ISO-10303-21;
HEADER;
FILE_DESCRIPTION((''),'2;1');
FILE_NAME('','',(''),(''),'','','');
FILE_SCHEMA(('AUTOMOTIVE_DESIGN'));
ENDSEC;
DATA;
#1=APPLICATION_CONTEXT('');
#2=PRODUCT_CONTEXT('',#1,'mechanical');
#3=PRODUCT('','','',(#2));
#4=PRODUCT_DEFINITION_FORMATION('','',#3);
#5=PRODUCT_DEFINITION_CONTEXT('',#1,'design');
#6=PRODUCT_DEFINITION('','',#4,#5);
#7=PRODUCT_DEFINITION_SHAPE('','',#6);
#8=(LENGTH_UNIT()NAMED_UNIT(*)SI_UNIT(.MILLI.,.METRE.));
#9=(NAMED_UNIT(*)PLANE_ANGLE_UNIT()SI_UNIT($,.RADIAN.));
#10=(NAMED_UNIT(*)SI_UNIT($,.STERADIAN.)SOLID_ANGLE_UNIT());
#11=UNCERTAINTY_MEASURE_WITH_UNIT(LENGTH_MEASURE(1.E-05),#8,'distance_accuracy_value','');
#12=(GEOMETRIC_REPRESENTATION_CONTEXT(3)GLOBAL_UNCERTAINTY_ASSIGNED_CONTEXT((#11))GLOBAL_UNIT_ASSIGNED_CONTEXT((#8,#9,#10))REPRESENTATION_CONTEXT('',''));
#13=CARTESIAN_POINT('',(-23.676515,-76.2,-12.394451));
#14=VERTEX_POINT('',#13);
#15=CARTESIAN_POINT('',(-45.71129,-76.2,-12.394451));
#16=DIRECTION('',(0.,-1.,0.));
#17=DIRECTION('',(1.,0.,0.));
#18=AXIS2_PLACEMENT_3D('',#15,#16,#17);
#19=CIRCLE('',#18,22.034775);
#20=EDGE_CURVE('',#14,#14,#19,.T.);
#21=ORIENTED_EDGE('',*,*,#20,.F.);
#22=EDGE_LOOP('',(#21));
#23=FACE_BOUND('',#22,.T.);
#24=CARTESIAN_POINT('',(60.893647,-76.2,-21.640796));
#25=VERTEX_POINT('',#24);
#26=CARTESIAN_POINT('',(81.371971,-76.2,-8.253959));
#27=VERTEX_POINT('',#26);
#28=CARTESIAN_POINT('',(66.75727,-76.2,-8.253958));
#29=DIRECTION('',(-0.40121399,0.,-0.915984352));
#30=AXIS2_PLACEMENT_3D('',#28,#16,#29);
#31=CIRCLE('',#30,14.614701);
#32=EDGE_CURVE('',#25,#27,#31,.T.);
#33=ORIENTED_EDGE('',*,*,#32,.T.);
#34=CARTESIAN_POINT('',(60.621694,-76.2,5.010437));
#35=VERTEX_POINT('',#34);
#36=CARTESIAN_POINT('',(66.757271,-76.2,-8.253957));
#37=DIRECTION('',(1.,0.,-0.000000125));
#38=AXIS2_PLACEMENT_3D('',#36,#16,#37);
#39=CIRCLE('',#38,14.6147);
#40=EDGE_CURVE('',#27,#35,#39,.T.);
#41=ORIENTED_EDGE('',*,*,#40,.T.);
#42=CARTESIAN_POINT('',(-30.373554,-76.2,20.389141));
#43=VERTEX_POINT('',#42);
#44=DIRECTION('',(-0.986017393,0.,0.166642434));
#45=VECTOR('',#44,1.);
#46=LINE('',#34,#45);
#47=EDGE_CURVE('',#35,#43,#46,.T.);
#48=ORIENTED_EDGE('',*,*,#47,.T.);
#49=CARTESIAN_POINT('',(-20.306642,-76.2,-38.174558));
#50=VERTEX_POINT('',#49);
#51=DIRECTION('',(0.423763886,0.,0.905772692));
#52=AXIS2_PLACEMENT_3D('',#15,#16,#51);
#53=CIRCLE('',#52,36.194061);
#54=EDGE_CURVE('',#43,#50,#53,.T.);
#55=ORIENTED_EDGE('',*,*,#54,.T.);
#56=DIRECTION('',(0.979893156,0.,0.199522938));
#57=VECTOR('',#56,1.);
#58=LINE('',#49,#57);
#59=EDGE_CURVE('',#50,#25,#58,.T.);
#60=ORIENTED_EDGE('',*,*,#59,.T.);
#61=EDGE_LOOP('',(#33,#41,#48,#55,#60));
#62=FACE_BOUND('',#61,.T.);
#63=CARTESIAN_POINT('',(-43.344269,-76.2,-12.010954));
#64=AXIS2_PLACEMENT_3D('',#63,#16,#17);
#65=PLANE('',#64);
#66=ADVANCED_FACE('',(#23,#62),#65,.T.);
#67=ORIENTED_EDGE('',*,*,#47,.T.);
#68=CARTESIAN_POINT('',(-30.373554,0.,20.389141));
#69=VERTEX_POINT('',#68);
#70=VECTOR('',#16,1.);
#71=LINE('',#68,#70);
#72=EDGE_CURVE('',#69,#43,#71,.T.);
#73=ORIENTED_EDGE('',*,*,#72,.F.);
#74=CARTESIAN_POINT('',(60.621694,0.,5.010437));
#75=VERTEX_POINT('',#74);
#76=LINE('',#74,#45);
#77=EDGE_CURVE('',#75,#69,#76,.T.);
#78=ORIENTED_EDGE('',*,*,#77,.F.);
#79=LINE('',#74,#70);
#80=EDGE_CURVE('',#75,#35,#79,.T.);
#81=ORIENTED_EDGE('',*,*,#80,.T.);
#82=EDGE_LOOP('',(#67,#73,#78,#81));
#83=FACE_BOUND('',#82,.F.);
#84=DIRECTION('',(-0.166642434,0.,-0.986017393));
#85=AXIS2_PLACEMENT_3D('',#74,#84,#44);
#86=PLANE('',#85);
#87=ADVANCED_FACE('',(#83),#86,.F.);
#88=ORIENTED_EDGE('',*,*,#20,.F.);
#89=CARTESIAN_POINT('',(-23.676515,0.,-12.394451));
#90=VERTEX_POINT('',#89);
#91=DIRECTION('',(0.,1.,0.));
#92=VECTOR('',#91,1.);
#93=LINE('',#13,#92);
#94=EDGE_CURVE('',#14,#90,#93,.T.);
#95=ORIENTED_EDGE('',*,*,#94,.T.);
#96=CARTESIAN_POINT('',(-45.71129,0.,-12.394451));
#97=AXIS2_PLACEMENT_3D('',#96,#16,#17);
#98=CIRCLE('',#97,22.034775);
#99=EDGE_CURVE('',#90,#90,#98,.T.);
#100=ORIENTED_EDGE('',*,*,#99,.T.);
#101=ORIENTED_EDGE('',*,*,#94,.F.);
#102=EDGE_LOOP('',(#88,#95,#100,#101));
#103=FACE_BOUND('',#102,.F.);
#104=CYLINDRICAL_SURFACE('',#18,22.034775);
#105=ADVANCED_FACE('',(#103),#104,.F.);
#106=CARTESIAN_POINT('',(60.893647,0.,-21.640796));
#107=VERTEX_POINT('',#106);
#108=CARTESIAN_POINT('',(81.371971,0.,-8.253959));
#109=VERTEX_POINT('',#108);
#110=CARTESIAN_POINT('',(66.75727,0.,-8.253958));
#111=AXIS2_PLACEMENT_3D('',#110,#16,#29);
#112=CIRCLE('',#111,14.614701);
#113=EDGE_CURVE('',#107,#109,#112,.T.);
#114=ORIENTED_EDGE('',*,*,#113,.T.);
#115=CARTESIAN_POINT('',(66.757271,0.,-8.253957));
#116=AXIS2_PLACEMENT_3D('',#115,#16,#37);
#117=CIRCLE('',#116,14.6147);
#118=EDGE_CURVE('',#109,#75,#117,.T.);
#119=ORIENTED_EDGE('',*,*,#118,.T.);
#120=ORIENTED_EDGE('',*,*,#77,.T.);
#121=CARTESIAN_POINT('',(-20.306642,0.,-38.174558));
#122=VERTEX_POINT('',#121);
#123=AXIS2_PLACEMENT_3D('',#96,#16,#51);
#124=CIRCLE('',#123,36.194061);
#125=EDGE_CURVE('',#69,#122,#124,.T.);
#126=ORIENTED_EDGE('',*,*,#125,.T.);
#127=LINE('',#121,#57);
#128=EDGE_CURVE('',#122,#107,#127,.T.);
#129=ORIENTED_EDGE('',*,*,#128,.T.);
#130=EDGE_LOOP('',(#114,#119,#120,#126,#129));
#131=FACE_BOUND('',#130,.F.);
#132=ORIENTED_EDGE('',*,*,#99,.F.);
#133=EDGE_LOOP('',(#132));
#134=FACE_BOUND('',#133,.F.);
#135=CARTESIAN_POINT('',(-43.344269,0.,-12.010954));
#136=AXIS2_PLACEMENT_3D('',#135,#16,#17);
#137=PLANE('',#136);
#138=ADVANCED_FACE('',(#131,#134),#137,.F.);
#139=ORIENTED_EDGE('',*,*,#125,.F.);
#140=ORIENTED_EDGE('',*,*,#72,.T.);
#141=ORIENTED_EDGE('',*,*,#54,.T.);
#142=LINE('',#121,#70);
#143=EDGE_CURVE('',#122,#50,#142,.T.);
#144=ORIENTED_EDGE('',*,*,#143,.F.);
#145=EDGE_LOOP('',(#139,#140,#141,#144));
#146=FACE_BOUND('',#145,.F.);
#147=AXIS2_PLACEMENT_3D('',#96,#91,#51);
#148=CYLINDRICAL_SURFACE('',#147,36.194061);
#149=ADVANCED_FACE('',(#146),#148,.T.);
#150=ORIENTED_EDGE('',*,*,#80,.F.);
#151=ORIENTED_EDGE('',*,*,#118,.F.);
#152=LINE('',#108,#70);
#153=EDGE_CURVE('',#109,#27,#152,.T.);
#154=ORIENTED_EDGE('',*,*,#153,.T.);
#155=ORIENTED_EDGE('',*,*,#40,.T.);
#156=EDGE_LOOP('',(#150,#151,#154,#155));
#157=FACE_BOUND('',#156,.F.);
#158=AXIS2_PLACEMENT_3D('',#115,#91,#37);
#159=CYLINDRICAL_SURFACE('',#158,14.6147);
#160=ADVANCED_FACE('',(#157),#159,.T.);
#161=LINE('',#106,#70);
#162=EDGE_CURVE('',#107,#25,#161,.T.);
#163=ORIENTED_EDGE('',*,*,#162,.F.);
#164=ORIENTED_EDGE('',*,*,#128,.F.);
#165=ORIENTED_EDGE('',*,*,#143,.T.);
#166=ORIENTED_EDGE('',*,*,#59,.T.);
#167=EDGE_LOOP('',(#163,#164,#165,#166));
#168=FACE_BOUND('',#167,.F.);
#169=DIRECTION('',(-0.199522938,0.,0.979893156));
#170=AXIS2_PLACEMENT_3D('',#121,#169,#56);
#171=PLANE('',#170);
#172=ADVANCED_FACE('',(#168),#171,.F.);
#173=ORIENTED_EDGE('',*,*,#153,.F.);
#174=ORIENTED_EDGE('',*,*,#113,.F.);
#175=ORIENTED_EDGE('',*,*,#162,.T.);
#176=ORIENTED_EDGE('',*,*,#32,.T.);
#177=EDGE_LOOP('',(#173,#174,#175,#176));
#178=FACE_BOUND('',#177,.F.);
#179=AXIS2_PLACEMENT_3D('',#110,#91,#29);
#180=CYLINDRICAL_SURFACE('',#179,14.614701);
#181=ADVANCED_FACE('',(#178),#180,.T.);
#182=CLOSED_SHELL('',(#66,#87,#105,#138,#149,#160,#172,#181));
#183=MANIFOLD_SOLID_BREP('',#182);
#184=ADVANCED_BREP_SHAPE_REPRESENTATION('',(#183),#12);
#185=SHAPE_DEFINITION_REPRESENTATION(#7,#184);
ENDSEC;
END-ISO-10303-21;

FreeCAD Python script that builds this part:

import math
import FreeCAD as App
import Part
import Sketcher
from FreeCAD import Vector
Q = App.Units.Quantity

doc = App.newDocument("Part")
body = doc.addObject("PartDesign::Body", "Body")

# Sketch on XZ plane
sketch1 = body.newObject("Sketcher::SketchObject", "Sketch")
sketch1.AttachmentSupport = (doc.getObject("XZ_Plane"), [""])
sketch1.MapMode = "FlatFace"
sketch1.addGeometry([
    Part.ArcOfCircle(Part.Circle(Vector(-46, -12, 0), Vector(0, 0, 1), 36), math.radians(65), math.radians(315)),  # 0
    Part.LineSegment(Vector(-20, -38, 0), Vector(61, -22, 0)),  # 1
    Part.ArcOfCircle(Part.Circle(Vector(67, -8, 0), Vector(0, 0, 1), 15), math.radians(-114), math.radians(0)),  # 2
    Part.ArcOfCircle(Part.Circle(Vector(67, -8, 0), Vector(0, 0, 1), 15), math.radians(0), math.radians(115)),  # 3
    Part.LineSegment(Vector(61, 5, 0), Vector(-30, 20, 0)),  # 4
], False)
sketch1.addConstraint([
    Sketcher.Constraint("Coincident", 0, 2, 1, 1),
    Sketcher.Constraint("Coincident", 1, 2, 2, 1),
    Sketcher.Constraint("Tangent", 2, 2, 3, 1),
    Sketcher.Constraint("Coincident", 3, 2, 4, 1),
    Sketcher.Constraint("Coincident", 4, 2, 0, 1),
    Sketcher.Constraint("Equal", 2, 3),
    Sketcher.Constraint("Horizontal", 3, 3, 2, 2),
    Sketcher.Constraint("Radius", 2, Q("14.614701 mm")),
    Sketcher.Constraint("DistanceY", 1, 2, -1, 1, Q("0.8519998 in")),
    Sketcher.Constraint("Radius", 0, Q("36.194061 mm")),
    Sketcher.Constraint("DistanceY", 0, 2, 2, 3, Q("29.9206 mm")),
    Sketcher.Constraint("DistanceY", 0, 2, 4, 2, Q("58.563699 mm")),
    Sketcher.Constraint("DistanceX", 4, 2, 1, 2, Q("91.267201 mm")),
    Sketcher.Constraint("Distance", 4, Q("92.285642 mm")),
    Sketcher.Constraint("DistanceX", 0, 3, -1, 1, Q("45.71129 mm")),
    Sketcher.Constraint("DistanceY", 0, 3, -1, 1, Q("12.394451 mm")),
    Sketcher.Constraint("DistanceX", -1, 1, 2, 3, Q("66.75727 mm")),
])
pad1 = body.newObject("PartDesign::Pad", "Pad")
pad1.Profile = sketch1
pad1.Length = Q("3 in")

# Sketch on XZ plane
sketch2 = body.newObject("Sketcher::SketchObject", "Sketch001")
sketch2.AttachmentSupport = (doc.getObject("XZ_Plane"), [""])
sketch2.MapMode = "FlatFace"
sketch2.AttachmentOffset = App.Placement(Vector(0, 0, 3 * 25.4), App.Rotation())
sketch2.addGeometry(Part.Circle(Vector(-46, -12, 0), Vector(0, 0, 1), 22), False)
sketch2.addConstraint([
    Sketcher.Constraint("Diameter", 0, Q("44.06955 mm")),
    Sketcher.Constraint("DistanceX", 0, 3, -1, 1, Q("45.71129 mm")),
    Sketcher.Constraint("DistanceY", 0, 3, -1, 1, Q("12.394451 mm")),
])
pocket1 = body.newObject("PartDesign::Pocket", "Pocket")
pocket1.Profile = sketch2
pocket1.Length = Q("10 in")

doc.recompute()
